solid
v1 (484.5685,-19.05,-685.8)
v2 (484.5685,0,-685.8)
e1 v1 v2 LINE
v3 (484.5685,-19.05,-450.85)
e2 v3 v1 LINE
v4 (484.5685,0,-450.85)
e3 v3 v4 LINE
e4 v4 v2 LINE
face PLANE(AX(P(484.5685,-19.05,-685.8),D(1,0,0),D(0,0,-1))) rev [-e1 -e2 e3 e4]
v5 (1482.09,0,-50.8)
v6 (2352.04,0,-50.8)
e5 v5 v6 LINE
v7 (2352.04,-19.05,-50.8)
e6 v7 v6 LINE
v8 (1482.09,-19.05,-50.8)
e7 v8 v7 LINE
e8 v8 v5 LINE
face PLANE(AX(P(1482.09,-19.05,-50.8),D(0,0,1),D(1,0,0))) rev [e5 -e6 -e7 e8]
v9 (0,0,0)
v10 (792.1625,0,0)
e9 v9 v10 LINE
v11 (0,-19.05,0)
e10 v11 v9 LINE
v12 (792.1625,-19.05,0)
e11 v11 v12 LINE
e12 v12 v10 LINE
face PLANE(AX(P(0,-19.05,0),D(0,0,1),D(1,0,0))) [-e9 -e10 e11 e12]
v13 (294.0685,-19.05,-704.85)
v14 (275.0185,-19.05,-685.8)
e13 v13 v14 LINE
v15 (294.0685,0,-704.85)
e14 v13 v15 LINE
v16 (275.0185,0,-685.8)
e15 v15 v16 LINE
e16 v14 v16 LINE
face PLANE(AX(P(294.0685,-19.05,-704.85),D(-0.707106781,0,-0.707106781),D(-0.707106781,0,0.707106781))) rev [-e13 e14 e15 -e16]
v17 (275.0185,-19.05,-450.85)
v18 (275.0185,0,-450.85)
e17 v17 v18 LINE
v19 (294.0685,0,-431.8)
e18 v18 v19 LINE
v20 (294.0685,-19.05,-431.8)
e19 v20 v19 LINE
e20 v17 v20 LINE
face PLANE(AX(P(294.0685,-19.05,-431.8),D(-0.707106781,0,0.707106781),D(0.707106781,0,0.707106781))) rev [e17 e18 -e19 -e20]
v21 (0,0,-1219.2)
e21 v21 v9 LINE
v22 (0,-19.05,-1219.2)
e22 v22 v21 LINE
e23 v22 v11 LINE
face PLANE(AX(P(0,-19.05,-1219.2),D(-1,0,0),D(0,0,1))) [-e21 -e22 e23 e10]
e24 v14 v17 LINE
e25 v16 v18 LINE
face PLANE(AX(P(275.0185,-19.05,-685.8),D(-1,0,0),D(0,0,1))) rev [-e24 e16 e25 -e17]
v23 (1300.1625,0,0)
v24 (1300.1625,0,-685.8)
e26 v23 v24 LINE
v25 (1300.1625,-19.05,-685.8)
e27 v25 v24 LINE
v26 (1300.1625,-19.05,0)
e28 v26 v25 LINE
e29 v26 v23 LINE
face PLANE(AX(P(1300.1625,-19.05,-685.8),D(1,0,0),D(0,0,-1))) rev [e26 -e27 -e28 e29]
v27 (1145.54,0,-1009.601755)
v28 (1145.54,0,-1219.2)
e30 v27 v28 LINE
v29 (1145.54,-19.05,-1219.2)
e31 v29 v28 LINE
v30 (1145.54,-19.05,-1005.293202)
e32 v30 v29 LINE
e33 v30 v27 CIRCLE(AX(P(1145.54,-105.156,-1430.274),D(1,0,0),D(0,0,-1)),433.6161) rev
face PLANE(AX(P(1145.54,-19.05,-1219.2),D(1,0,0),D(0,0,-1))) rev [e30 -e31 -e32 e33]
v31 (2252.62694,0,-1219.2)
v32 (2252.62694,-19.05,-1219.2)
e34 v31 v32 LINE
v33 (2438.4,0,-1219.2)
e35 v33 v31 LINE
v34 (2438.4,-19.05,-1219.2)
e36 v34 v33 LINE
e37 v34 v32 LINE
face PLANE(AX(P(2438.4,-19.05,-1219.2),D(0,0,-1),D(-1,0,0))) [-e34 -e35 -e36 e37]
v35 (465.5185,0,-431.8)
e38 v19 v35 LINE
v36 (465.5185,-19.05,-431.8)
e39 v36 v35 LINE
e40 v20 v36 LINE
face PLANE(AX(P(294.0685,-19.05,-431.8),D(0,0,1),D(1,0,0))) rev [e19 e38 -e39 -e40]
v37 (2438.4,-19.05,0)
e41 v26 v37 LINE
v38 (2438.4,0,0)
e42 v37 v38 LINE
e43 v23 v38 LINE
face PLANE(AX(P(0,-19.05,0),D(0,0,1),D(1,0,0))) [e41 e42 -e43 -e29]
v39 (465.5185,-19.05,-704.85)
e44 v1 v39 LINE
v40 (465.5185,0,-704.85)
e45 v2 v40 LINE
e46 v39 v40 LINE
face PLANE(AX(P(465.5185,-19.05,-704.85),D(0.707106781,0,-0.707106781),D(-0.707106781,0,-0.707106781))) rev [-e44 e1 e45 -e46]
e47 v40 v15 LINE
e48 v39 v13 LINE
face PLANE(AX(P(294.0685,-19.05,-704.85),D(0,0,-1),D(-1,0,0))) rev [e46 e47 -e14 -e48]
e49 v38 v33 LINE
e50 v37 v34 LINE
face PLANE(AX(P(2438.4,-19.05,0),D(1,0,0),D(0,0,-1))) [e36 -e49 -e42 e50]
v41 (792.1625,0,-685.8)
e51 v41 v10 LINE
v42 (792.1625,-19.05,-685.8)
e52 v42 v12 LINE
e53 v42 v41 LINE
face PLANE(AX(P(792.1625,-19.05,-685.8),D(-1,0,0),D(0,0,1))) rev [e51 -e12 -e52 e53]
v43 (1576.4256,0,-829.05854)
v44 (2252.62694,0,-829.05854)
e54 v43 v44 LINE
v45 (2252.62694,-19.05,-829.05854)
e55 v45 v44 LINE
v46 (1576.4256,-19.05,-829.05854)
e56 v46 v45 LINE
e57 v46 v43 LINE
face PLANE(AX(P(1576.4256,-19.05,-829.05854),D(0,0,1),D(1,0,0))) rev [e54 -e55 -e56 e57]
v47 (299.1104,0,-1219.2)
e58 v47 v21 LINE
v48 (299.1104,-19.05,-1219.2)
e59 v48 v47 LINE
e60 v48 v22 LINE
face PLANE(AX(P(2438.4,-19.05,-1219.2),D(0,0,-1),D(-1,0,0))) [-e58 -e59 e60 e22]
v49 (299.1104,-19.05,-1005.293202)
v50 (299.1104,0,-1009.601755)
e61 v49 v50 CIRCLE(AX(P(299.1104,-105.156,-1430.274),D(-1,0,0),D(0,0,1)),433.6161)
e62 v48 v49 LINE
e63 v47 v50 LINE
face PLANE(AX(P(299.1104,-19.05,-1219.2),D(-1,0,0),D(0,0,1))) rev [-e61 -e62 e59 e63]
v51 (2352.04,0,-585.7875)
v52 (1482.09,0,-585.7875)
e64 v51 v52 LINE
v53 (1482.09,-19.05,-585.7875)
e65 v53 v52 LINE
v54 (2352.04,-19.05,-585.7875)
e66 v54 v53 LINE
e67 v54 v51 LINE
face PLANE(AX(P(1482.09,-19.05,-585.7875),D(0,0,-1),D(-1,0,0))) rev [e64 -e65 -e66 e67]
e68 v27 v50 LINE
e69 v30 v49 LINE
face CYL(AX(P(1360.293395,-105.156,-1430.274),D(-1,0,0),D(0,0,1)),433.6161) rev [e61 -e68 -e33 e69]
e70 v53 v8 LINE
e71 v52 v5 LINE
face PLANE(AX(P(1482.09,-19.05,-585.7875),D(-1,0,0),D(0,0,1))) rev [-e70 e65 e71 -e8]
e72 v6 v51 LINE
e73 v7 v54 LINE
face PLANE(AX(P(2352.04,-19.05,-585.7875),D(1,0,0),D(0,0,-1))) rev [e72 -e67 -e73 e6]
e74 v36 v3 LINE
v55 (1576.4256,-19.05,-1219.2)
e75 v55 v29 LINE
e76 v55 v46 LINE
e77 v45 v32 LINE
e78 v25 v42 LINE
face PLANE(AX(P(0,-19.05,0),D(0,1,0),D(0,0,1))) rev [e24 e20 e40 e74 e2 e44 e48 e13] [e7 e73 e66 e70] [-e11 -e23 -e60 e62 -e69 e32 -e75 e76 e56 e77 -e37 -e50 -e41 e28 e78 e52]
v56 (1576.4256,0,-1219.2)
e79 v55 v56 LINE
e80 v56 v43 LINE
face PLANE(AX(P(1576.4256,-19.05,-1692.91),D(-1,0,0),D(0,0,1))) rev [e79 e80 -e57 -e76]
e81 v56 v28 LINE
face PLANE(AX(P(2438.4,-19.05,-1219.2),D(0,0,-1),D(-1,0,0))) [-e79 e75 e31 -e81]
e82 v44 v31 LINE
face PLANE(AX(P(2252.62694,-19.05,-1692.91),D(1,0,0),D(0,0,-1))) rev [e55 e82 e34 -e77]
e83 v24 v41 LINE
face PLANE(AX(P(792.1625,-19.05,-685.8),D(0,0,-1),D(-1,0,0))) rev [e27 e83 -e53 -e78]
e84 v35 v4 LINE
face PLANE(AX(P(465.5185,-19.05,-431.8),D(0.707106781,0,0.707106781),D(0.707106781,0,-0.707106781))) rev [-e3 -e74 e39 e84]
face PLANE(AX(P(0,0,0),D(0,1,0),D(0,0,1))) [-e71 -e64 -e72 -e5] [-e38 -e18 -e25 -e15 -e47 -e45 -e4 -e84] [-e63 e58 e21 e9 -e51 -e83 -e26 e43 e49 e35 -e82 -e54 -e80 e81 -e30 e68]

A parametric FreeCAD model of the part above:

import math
import FreeCAD as App
import Part
import Sketcher

V = App.Vector
Q = App.Units.Quantity

doc = App.newDocument("Part")
body = doc.addObject("PartDesign::Body", "Body")

# Sketch on XZ plane
sketch1 = body.newObject("Sketcher::SketchObject", "Sketch")
sketch1.AttachmentSupport = (doc.getObject("XZ_Plane"), [""])
sketch1.MapMode = "FlatFace"
sketch1.addGeometry([
    Part.LineSegment(V(0, -1219, 0), V(0, 0, 0)),
    Part.LineSegment(V(0, 0, 0), V(2438, 0, 0)),
    Part.LineSegment(V(2438, 0, 0), V(2438, -1219, 0)),
    Part.LineSegment(V(2438, -1219, 0), V(0, -1219, 0)),
], False)
sketch1.addConstraint([
    Sketcher.Constraint("Coincident", 0, 2, 1, 1),
    Sketcher.Constraint("Coincident", 1, 2, 2, 1),
    Sketcher.Constraint("Coincident", 2, 2, 3, 1),
    Sketcher.Constraint("Coincident", 3, 2, 0, 1),
    Sketcher.Constraint("Vertical", 0),
    Sketcher.Constraint("Horizontal", 1),
    Sketcher.Constraint("Vertical", 2),
    Sketcher.Constraint("Horizontal", 3),
    Sketcher.Constraint("Coincident", 0, 2, -1, 1),
    Sketcher.Constraint("DistanceX", 1, 1, 1, 2, Q("96 in")),
    Sketcher.Constraint("DistanceY", 0, 1, 0, 2, Q("48 in")),
])
pad1 = body.newObject("PartDesign::Pad", "Pad")
pad1.Profile = sketch1
pad1.Length = Q("0.75 in")

# Sketch on XZ plane
sketch2 = body.newObject("Sketcher::SketchObject", "Sketch001")
sketch2.AttachmentSupport = (doc.getObject("XZ_Plane"), [""])
sketch2.MapMode = "FlatFace"
sketch2.addGeometry([
    Part.LineSegment(V(1482, -586, 0), V(1482, -51, 0)),
    Part.LineSegment(V(1482, -51, 0), V(2352, -51, 0)),
    Part.LineSegment(V(2352, -51, 0), V(2352, -586, 0)),
    Part.LineSegment(V(2352, -586, 0), V(1482, -586, 0)),
], False)
sketch2.addConstraint([
    Sketcher.Constraint("Coincident", 0, 2, 1, 1),
    Sketcher.Constraint("Coincident", 1, 2, 2, 1),
    Sketcher.Constraint("Coincident", 2, 2, 3, 1),
    Sketcher.Constraint("Coincident", 3, 2, 0, 1),
    Sketcher.Constraint("Vertical", 0),
    Sketcher.Constraint("Horizontal", 1),
    Sketcher.Constraint("Vertical", 2),
    Sketcher.Constraint("Horizontal", 3),
    Sketcher.Constraint("DistanceY", 0, 2, -1, 1, Q("2 in")),
    Sketcher.Constraint("DistanceX", 1, 1, 1, 2, Q("34.25 in")),
    Sketcher.Constraint("DistanceX", -1, 1, 1, 2, Q("92.6 in")),
    Sketcher.Constraint("DistanceY", 0, 1, 0, 2, Q("21.0625 in")),
])
pocket1 = body.newObject("PartDesign::Pocket", "Pocket")
pocket1.Profile = sketch2
pocket1.Type = "ThroughAll"
pocket1.Reversed = True

# Sketch on XZ plane
sketch3 = body.newObject("Sketcher::SketchObject", "Sketch002")
sketch3.AttachmentSupport = (doc.getObject("XZ_Plane"), [""])
sketch3.MapMode = "FlatFace"
sketch3.addGeometry([
    Part.LineSegment(V(792, -686, 0), V(792, 0, 0)),
    Part.LineSegment(V(792, 0, 0), V(1300, 0, 0)),
    Part.LineSegment(V(1300, 0, 0), V(1300, -686, 0)),
    Part.LineSegment(V(1300, -686, 0), V(792, -686, 0)),
], False)
sketch3.addConstraint([
    Sketcher.Constraint("Coincident", 0, 2, 1, 1),
    Sketcher.Constraint("Coincident", 1, 2, 2, 1),
    Sketcher.Constraint("Coincident", 2, 2, 3, 1),
    Sketcher.Constraint("Coincident", 3, 2, 0, 1),
    Sketcher.Constraint("Vertical", 0),
    Sketcher.Constraint("Horizontal", 1),
    Sketcher.Constraint("Vertical", 2),
    Sketcher.Constraint("Horizontal", 3),
    Sketcher.Constraint("PointOnObject", 0, 2, -1),
    Sketcher.Constraint("DistanceX", 1, 1, 1, 2, Q("20 in")),
    Sketcher.Constraint("DistanceY", 0, 1, 0, 2, Q("27 in")),
    Sketcher.Constraint("DistanceX", -1, 1, 0, 2, Q("31.1875 in")),
])
pocket2 = body.newObject("PartDesign::Pocket", "Pocket001")
pocket2.Profile = sketch3
pocket2.Type = "ThroughAll"
pocket2.Reversed = True

# Sketch on XZ plane
sketch4 = body.newObject("Sketcher::SketchObject", "Sketch003")
sketch4.AttachmentSupport = (doc.getObject("XZ_Plane"), [""])
sketch4.MapMode = "FlatFace"
sketch4.addGeometry([
    Part.LineSegment(V(1576, -1693, 0), V(1576, -829, 0)),
    Part.LineSegment(V(1576, -829, 0), V(2253, -829, 0)),
    Part.LineSegment(V(2253, -829, 0), V(2253, -1693, 0)),
    Part.LineSegment(V(2253, -1693, 0), V(1576, -1693, 0)),
], False)
sketch4.addConstraint([
    Sketcher.Constraint("Coincident", 0, 2, 1, 1),
    Sketcher.Constraint("Coincident", 1, 2, 2, 1),
    Sketcher.Constraint("Coincident", 2, 2, 3, 1),
    Sketcher.Constraint("Coincident", 3, 2, 0, 1),
    Sketcher.Constraint("Vertical", 0),
    Sketcher.Constraint("Horizontal", 1),
    Sketcher.Constraint("Vertical", 2),
    Sketcher.Constraint("Horizontal", 3),
    Sketcher.Constraint("DistanceY", 2, 2, -1, 1, Q("66.65 in")),
    Sketcher.Constraint("DistanceX", 1, 1, 1, 2, Q("26.6221 in")),
    Sketcher.Constraint("DistanceY", 0, 1, 0, 2, Q("34.0099 in")),
    Sketcher.Constraint("DistanceX", -1, 1, 0, 2, Q("62.064 in")),
])
pocket3 = body.newObject("PartDesign::Pocket", "Pocket002")
pocket3.Profile = sketch4
pocket3.Type = "ThroughAll"
pocket3.Reversed = True

# Sketch on XZ plane
sketch5 = body.newObject("Sketcher::SketchObject", "Sketch004")
sketch5.AttachmentSupport = (doc.getObject("XZ_Plane"), [""])
sketch5.MapMode = "FlatFace"
sketch5.addGeometry([
    Part.LineSegment(V(299, -1219, 0), V(299, -1013, 0)),
    Part.LineSegment(V(299, -1013, 0), V(1146, -1013, 0)),
    Part.LineSegment(V(1146, -1013, 0), V(1146, -1219, 0)),
    Part.LineSegment(V(1146, -1219, 0), V(299, -1219, 0)),
], False)
sketch5.addConstraint([
    Sketcher.Constraint("Coincident", 0, 2, 1, 1),
    Sketcher.Constraint("Coincident", 1, 2, 2, 1),
    Sketcher.Constraint("Coincident", 2, 2, 3, 1),
    Sketcher.Constraint("Coincident", 3, 2, 0, 1),
    Sketcher.Constraint("Vertical", 0),
    Sketcher.Constraint("Horizontal", 1),
    Sketcher.Constraint("Vertical", 2),
    Sketcher.Constraint("Horizontal", 3),
    Sketcher.Constraint("DistanceY", 2, 2, -1, 1, Q("48 in")),
    Sketcher.Constraint("DistanceX", -1, 1, 1, 2, Q("45.1 in")),
    Sketcher.Constraint("DistanceX", 1, 1, 1, 2, Q("33.324 in")),
    Sketcher.Constraint("DistanceY", 0, 1, 0, 2, Q("8.125 in")),
])
pocket4 = body.newObject("PartDesign::Pocket", "Pocket003")
pocket4.Profile = sketch5
pocket4.Type = "ThroughAll"
pocket4.Reversed = True

# Sketch on XZ plane
sketch6 = body.newObject("Sketcher::SketchObject", "Sketch005")
sketch6.AttachmentSupport = (doc.getObject("XZ_Plane"), [""])
sketch6.MapMode = "FlatFace"
sketch6.addGeometry([
    Part.LineSegment(V(294, -705, 0), V(275, -686, 0)),  # 0
    Part.LineSegment(V(275, -686, 0), V(275, -451, 0)),  # 1
    Part.LineSegment(V(275, -451, 0), V(294, -432, 0)),  # 2
    Part.LineSegment(V(294, -432, 0), V(466, -432, 0)),  # 3
    Part.LineSegment(V(466, -432, 0), V(485, -451, 0)),  # 4
    Part.LineSegment(V(485, -451, 0), V(485, -686, 0)),  # 5
    Part.LineSegment(V(485, -686, 0), V(466, -705, 0)),  # 6
    Part.LineSegment(V(466, -705, 0), V(294, -705, 0)),  # 7
], False)
sketch6.addConstraint([
    Sketcher.Constraint("Coincident", 0, 2, 1, 1),
    Sketcher.Constraint("Coincident", 1, 2, 2, 1),
    Sketcher.Constraint("Coincident", 2, 2, 3, 1),
    Sketcher.Constraint("Coincident", 3, 2, 4, 1),
    Sketcher.Constraint("Coincident", 4, 2, 5, 1),
    Sketcher.Constraint("Coincident", 5, 2, 6, 1),
    Sketcher.Constraint("Coincident", 6, 2, 7, 1),
    Sketcher.Constraint("Coincident", 7, 2, 0, 1),
    Sketcher.Constraint("Vertical", 1),
    Sketcher.Constraint("Horizontal", 3),
    Sketcher.Constraint("Vertical", 5),
    Sketcher.Constraint("Horizontal", 7),
    Sketcher.Constraint("Perpendicular", 0, 2),
    Sketcher.Constraint("Perpendicular", 2, 4),
    Sketcher.Constraint("Perpendicular", 4, 6),
    Sketcher.Constraint("Horizontal", 1, 2, 4, 2),
    Sketcher.Constraint("Horizontal", 0, 2, 5, 2),
    Sketcher.Constraint("Vertical", 3, 2, 6, 2),
    Sketcher.Constraint("Vertical", 2, 2, 7, 2),
    Sketcher.Constraint("DistanceY", 0, 2, -1, 1, Q("27 in")),
    Sketcher.Constraint("DistanceY", 2, 2, -1, 1, Q("17 in")),
    Sketcher.Constraint("DistanceX", 3, 1, 3, 2, Q("6.75 in")),
    Sketcher.Constraint("DistanceY", 1, 1, 1, 2, Q("9.25 in")),
    Sketcher.Constraint("DistanceX", -1, 1, 0, 2, Q("10.8275 in")),
])
pocket5 = body.newObject("PartDesign::Pocket", "Pocket004")
pocket5.Profile = sketch6
pocket5.Type = "ThroughAll"
pocket5.Reversed = True

# Sketch on YZ plane
sketch7 = body.newObject("Sketcher::SketchObject", "Sketch006")
sketch7.AttachmentSupport = (doc.getObject("YZ_Plane"), [""])
sketch7.MapMode = "FlatFace"
sketch7.AttachmentOffset = App.Placement(V(0, 0, 11.776 * 25.4), App.Rotation())
sketch7.addGeometry([
    Part.LineSegment(V(0, -1010, 0), V(0, -1219, 0)),
    Part.LineSegment(V(0, -1219, 0), V(-19, -1219, 0)),
    Part.LineSegment(V(-19, -1219, 0), V(-19, -1005, 0)),
    Part.ArcOfCircle(Part.Circle(V(-105, -1430, 0), V(0, 0, 1), 434), math.radians(75.97), math.radians(78.55)),
], False)
sketch7.addConstraint([
    Sketcher.Constraint("Coincident", 0, 2, 1, 1),
    Sketcher.Constraint("Coincident", 1, 2, 2, 1),
    Sketcher.Constraint("Coincident", 2, 2, 3, 2),
    Sketcher.Constraint("Coincident", 3, 1, 0, 1),
    Sketcher.Constraint("Vertical", 0),
    Sketcher.Constraint("Horizontal", 1),
    Sketcher.Constraint("Vertical", 2),
    Sketcher.Constraint("PointOnObject", 0, 2, -2),
    Sketcher.Constraint("DistanceY", 0, 2, -1, 1, Q("48 in")),
    Sketcher.Constraint("DistanceX", 1, 2, 1, 1, Q("0.75 in")),
    Sketcher.Constraint("Radius", 3, Q("17.0715001 in")),
    Sketcher.Constraint("DistanceX", 3, 3, -1, 1, Q("4.14 in")),
    Sketcher.Constraint("DistanceY", 3, 3, -1, 1, Q("56.3100001 in")),
])
pocket6 = body.newObject("PartDesign::Pocket", "Pocket005")
pocket6.Profile = sketch7
pocket6.Length = Q("33.324 in")
pocket6.Reversed = True

doc.recompute()
